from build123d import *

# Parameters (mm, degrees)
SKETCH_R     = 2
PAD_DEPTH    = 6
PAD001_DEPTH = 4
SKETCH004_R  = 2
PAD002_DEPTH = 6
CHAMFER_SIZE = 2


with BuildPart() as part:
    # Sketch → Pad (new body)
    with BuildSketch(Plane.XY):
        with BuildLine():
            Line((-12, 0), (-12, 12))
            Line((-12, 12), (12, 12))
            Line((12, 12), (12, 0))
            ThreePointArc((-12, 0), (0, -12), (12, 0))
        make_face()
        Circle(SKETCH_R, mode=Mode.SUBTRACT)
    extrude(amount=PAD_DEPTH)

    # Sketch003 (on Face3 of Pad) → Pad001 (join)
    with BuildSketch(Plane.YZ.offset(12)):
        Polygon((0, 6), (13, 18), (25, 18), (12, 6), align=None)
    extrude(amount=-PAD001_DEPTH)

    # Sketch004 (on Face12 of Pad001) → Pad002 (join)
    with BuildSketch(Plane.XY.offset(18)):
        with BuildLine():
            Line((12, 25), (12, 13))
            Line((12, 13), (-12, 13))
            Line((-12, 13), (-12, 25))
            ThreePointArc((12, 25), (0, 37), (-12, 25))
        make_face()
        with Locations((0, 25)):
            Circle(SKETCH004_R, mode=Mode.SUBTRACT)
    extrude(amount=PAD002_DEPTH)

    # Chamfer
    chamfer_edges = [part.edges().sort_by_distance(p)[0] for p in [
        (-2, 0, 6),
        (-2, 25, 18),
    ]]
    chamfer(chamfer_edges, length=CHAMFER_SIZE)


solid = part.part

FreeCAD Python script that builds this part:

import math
import FreeCAD as App
import Part
import Sketcher


def edges_at(feature, points):
    """Names of the edges that pass closest to the given points."""
    edges = feature.Shape.Edges
    near = lambda p: min(range(len(edges)), key=lambda i: edges[i].distToShape(Part.Vertex(*p))[0])
    return sorted({f"Edge{near(p) + 1}" for p in points})

doc = App.newDocument("Part")
body = doc.addObject("PartDesign::Body", "Body")

# Sketch on XY plane
sketch1 = body.newObject("Sketcher::SketchObject", "Sketch")
sketch1.AttachmentSupport = (doc.getObject("XY_Plane"), [""])
sketch1.MapMode = "FlatFace"
sketch1.addGeometry([
    Part.LineSegment(App.Vector(-12, 12, 0), App.Vector(-12, 0, 0)),  # 0
    Part.ArcOfCircle(Part.Circle(App.Vector(0, 0, 0), App.Vector(0, 0, 1), 12), math.radians(180), math.radians(360)),  # 1
    Part.LineSegment(App.Vector(12, 0, 0), App.Vector(12, 12, 0)),  # 2
    Part.LineSegment(App.Vector(12, 12, 0), App.Vector(-12, 12, 0)),  # 3
    Part.Circle(App.Vector(0, 0, 0), App.Vector(0, 0, 1), 2),  # 4
], False)
sketch1.addConstraint([
    Sketcher.Constraint("Tangent", 0, 2, 1, 1),
    Sketcher.Constraint("Tangent", 1, 2, 2, 1),
    Sketcher.Constraint("Coincident", 2, 2, 3, 1),
    Sketcher.Constraint("Coincident", 3, 2, 0, 1),
    Sketcher.Constraint("Vertical", 0),
    Sketcher.Constraint("Vertical", 2),
    Sketcher.Constraint("Horizontal", 3),
    Sketcher.Constraint("Coincident", 1, 3, -1, 1),
    Sketcher.Constraint("Coincident", 4, 3, -1, 1),
    Sketcher.Constraint("Diameter", 4, 4.0),
    Sketcher.Constraint("Radius", 1, 12.0),
    Sketcher.Constraint("DistanceY", 0, 2, 0, 1, 12.0),
])
pad1 = body.newObject("PartDesign::Pad", "Pad")
pad1.Profile = sketch1
pad1.Length = 6

# Sketch on YZ plane
sketch2 = body.newObject("Sketcher::SketchObject", "Sketch001")
sketch2.AttachmentSupport = (doc.getObject("YZ_Plane"), [""])
sketch2.MapMode = "FlatFace"
sketch2.AttachmentOffset = App.Placement(App.Vector(0, 0, 12), App.Rotation())
sketch2.addGeometry([
    Part.LineSegment(App.Vector(13, 18, 0), App.Vector(0, 6, 0)),
    Part.LineSegment(App.Vector(0, 6, 0), App.Vector(12, 6, 0)),
    Part.LineSegment(App.Vector(12, 6, 0), App.Vector(25, 18, 0)),
    Part.LineSegment(App.Vector(25, 18, 0), App.Vector(13, 18, 0)),
], False)
sketch2.addConstraint([
    Sketcher.Constraint("Coincident", 0, 2, 1, 1),
    Sketcher.Constraint("Coincident", 1, 2, 2, 1),
    Sketcher.Constraint("Coincident", 2, 2, 3, 1),
    Sketcher.Constraint("Coincident", 3, 2, 0, 1),
    Sketcher.Constraint("Horizontal", 1),
    Sketcher.Constraint("Horizontal", 3),
    Sketcher.Constraint("PointOnObject", 0, 2, -2),
    Sketcher.Constraint("Parallel", 0, 2),
    Sketcher.Constraint("DistanceX", 1, 1, 1, 2, 12.0),
    Sketcher.Constraint("DistanceY", -1, 1, 0, 2, 6.0),
    Sketcher.Constraint("DistanceX", -1, 1, 2, 2, 25.0),
    Sketcher.Constraint("DistanceY", -1, 1, 2, 2, 18.0),
])
pad2 = body.newObject("PartDesign::Pad", "Pad001")
pad2.Profile = sketch2
pad2.Length = 4
pad2.Reversed = True

# Sketch on XY plane
sketch3 = body.newObject("Sketcher::SketchObject", "Sketch002")
sketch3.AttachmentSupport = (doc.getObject("XY_Plane"), [""])
sketch3.MapMode = "FlatFace"
sketch3.AttachmentOffset = App.Placement(App.Vector(0, 0, 18), App.Rotation())
sketch3.addGeometry([
    Part.LineSegment(App.Vector(12, 13, 0), App.Vector(12, 25, 0)),  # 0
    Part.ArcOfCircle(Part.Circle(App.Vector(0, 25, 0), App.Vector(0, 0, 1), 12), math.radians(0), math.radians(180)),  # 1
    Part.LineSegment(App.Vector(-12, 25, 0), App.Vector(-12, 13, 0)),  # 2
    Part.LineSegment(App.Vector(-12, 13, 0), App.Vector(12, 13, 0)),  # 3
    Part.Circle(App.Vector(0, 25, 0), App.Vector(0, 0, 1), 2),  # 4
], False)
sketch3.addConstraint([
    Sketcher.Constraint("Tangent", 0, 2, 1, 1),
    Sketcher.Constraint("Tangent", 1, 2, 2, 1),
    Sketcher.Constraint("Coincident", 2, 2, 3, 1),
    Sketcher.Constraint("Coincident", 3, 2, 0, 1),
    Sketcher.Constraint("Vertical", 0),
    Sketcher.Constraint("Vertical", 2),
    Sketcher.Constraint("Horizontal", 3),
    Sketcher.Constraint("Coincident", 4, 3, 1, 3),
    Sketcher.Constraint("PointOnObject", 1, 3, -2),
    Sketcher.Constraint("Diameter", 4, 4.0),
    Sketcher.Constraint("Radius", 1, 12.0),
    Sketcher.Constraint("DistanceY", 0, 1, 0, 2, 12.0),
    Sketcher.Constraint("DistanceY", -1, 1, 1, 3, 25.0),
])
pad3 = body.newObject("PartDesign::Pad", "Pad002")
pad3.Profile = sketch3
pad3.Length = 6
doc.recompute()

chamfer = body.newObject("PartDesign::Chamfer", "Chamfer")
chamfer.Base = (pad3, edges_at(pad3, [(-2, 0, 6), (-2, 25, 18)]))
chamfer.Size = 2

doc.recompute()
